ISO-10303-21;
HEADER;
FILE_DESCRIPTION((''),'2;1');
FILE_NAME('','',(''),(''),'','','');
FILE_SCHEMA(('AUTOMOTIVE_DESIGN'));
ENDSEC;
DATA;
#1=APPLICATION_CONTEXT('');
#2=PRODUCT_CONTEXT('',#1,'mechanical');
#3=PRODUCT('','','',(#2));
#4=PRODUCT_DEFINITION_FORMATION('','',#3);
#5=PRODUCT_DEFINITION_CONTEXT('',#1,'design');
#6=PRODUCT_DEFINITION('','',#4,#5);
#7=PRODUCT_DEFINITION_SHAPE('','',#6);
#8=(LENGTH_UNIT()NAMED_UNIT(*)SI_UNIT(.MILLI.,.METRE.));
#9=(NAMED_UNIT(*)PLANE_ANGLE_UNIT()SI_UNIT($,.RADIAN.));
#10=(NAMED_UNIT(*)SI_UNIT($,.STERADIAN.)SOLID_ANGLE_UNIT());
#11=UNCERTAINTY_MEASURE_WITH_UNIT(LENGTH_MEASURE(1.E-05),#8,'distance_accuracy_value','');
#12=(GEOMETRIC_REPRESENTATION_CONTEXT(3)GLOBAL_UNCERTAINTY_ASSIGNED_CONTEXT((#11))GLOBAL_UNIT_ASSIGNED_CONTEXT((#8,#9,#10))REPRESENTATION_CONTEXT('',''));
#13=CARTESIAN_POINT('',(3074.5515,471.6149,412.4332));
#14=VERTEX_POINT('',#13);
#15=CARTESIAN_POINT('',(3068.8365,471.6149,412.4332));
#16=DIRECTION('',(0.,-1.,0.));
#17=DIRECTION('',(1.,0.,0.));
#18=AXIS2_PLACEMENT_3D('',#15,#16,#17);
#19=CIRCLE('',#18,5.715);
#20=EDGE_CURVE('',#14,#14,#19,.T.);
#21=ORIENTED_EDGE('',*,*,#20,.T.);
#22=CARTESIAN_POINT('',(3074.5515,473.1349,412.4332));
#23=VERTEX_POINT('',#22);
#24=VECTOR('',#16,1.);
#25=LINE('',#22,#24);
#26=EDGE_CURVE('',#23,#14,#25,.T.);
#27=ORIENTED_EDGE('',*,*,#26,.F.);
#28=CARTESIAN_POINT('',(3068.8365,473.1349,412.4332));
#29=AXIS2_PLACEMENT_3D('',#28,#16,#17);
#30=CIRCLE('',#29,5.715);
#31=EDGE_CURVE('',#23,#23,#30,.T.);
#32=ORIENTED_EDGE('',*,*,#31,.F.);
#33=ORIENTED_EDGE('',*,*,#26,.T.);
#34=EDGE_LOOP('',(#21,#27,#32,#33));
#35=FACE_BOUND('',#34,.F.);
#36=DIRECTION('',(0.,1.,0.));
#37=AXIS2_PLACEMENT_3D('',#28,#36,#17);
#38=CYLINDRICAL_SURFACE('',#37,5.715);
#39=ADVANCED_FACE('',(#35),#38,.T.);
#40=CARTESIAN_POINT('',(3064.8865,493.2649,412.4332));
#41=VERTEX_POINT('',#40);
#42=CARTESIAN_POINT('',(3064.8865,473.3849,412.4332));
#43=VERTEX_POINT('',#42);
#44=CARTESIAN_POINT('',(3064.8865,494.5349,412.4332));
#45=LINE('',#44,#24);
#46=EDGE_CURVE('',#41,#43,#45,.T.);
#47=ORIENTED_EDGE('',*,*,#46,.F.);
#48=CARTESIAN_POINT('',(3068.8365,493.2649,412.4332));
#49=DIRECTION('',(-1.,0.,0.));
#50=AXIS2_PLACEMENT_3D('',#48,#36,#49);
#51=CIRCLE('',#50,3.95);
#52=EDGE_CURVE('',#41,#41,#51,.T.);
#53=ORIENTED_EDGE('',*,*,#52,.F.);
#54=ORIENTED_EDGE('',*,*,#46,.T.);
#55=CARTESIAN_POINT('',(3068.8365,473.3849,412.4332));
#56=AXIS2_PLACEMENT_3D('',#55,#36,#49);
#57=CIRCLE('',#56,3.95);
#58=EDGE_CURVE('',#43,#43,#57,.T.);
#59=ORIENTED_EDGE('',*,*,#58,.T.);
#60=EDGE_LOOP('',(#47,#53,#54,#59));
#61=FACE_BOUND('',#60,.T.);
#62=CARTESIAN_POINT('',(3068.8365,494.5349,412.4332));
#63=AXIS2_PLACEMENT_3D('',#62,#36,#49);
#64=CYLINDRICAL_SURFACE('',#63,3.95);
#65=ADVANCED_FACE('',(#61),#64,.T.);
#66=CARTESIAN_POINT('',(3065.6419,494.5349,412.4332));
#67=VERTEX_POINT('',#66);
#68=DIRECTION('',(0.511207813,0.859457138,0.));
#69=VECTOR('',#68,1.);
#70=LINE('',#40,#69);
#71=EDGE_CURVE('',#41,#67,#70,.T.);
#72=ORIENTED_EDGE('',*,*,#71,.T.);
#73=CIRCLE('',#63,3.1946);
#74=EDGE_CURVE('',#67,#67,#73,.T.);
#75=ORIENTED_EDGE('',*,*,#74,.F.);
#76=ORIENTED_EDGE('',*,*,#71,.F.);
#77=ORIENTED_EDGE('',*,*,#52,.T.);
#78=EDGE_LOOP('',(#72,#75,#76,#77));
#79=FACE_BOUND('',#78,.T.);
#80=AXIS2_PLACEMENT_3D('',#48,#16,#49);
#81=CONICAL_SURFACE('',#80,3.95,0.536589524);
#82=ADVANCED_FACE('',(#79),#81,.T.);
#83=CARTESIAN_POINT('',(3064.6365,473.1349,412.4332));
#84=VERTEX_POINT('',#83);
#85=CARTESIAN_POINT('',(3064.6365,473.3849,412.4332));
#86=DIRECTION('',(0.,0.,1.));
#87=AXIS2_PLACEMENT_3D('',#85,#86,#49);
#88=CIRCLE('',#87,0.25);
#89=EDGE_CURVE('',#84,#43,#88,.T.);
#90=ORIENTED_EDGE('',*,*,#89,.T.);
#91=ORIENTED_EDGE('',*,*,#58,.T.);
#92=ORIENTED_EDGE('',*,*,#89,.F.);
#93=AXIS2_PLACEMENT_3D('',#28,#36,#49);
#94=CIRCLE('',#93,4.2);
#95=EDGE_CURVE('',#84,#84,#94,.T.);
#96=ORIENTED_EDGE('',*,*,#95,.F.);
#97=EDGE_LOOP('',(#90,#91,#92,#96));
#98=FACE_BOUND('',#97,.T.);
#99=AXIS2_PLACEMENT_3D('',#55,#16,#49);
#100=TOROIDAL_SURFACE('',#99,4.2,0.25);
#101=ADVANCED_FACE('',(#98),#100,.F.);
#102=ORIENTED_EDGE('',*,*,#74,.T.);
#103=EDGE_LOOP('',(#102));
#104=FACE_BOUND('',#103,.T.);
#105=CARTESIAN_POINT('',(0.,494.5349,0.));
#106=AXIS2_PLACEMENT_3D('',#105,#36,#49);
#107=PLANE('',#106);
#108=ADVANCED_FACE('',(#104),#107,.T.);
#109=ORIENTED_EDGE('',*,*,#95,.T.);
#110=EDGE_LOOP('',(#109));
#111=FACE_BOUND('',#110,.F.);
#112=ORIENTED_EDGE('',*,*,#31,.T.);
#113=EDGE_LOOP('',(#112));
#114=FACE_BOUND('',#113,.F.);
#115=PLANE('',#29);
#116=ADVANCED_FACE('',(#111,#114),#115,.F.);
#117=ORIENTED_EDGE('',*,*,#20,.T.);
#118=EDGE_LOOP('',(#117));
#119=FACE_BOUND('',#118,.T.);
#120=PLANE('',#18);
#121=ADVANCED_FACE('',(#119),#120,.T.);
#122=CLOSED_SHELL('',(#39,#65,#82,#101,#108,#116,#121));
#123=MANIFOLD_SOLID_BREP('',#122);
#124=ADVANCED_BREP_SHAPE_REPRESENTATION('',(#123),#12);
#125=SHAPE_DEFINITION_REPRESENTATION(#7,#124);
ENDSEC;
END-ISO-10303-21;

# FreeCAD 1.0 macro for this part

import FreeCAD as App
import Part
import Sketcher

V = App.Vector
Q = App.Units.Quantity


def edges_at(feature, points):
    """Names of the edges that pass closest to the given points."""
    edges = feature.Shape.Edges
    near = lambda p: min(range(len(edges)), key=lambda i: edges[i].distToShape(Part.Vertex(*p))[0])
    return sorted({f"Edge{near(p) + 1}" for p in points})

doc = App.newDocument("Part")
body = doc.addObject("PartDesign::Body", "Body")

# Sketch on XZ plane
sketch1 = body.newObject("Sketcher::SketchObject", "Sketch")
sketch1.AttachmentSupport = (doc.getObject("XZ_Plane"), [""])
sketch1.MapMode = "FlatFace"
sketch1.AttachmentOffset = App.Placement(V(0, 0, -494.5349), App.Rotation())
sketch1.addGeometry(Part.Circle(V(3068.8, 412.4, 0), V(0, 0, 1), 4), False)
sketch1.addConstraint([
    Sketcher.Constraint("Diameter", 0, Q("7.9 mm")),
    Sketcher.Constraint("DistanceX", -1, 1, 0, 3, Q("3068.8365 mm")),
    Sketcher.Constraint("DistanceY", -1, 1, 0, 3, Q("412.4332 mm")),
])
pad1 = body.newObject("PartDesign::Pad", "Pad")
pad1.Profile = sketch1
pad1.Length = 21.4

# Sketch on XZ plane
sketch2 = body.newObject("Sketcher::SketchObject", "Sketch001")
sketch2.AttachmentSupport = (doc.getObject("XZ_Plane"), [""])
sketch2.MapMode = "FlatFace"
sketch2.AttachmentOffset = App.Placement(V(0, 0, -473.1349), App.Rotation())
sketch2.addGeometry(Part.Circle(V(3069, 412, 0), V(0, 0, 1), 6), False)
sketch2.addConstraint([
    Sketcher.Constraint("Diameter", 0, Q("11.43 mm")),
    Sketcher.Constraint("DistanceX", -1, 1, 0, 3, Q("3068.8365 mm")),
    Sketcher.Constraint("DistanceY", -1, 1, 0, 3, Q("412.4332 mm")),
])
pad2 = body.newObject("PartDesign::Pad", "Pad001")
pad2.Profile = sketch2
pad2.Length = 1.52
doc.recompute()

fillet = body.newObject("PartDesign::Fillet", "Fillet")
fillet.Base = (pad2, edges_at(pad2, [(3072.787, 473.135, 412.433)]))
fillet.Radius = 0.25
doc.recompute()

chamfer = body.newObject("PartDesign::Chamfer", "Chamfer")
chamfer.Base = (fillet, edges_at(fillet, [(3072.787, 494.535, 412.433)]))
chamfer.ChamferType = "Two distances"
chamfer.Size = 1.27
chamfer.Size2 = 0.7554

doc.recompute()
